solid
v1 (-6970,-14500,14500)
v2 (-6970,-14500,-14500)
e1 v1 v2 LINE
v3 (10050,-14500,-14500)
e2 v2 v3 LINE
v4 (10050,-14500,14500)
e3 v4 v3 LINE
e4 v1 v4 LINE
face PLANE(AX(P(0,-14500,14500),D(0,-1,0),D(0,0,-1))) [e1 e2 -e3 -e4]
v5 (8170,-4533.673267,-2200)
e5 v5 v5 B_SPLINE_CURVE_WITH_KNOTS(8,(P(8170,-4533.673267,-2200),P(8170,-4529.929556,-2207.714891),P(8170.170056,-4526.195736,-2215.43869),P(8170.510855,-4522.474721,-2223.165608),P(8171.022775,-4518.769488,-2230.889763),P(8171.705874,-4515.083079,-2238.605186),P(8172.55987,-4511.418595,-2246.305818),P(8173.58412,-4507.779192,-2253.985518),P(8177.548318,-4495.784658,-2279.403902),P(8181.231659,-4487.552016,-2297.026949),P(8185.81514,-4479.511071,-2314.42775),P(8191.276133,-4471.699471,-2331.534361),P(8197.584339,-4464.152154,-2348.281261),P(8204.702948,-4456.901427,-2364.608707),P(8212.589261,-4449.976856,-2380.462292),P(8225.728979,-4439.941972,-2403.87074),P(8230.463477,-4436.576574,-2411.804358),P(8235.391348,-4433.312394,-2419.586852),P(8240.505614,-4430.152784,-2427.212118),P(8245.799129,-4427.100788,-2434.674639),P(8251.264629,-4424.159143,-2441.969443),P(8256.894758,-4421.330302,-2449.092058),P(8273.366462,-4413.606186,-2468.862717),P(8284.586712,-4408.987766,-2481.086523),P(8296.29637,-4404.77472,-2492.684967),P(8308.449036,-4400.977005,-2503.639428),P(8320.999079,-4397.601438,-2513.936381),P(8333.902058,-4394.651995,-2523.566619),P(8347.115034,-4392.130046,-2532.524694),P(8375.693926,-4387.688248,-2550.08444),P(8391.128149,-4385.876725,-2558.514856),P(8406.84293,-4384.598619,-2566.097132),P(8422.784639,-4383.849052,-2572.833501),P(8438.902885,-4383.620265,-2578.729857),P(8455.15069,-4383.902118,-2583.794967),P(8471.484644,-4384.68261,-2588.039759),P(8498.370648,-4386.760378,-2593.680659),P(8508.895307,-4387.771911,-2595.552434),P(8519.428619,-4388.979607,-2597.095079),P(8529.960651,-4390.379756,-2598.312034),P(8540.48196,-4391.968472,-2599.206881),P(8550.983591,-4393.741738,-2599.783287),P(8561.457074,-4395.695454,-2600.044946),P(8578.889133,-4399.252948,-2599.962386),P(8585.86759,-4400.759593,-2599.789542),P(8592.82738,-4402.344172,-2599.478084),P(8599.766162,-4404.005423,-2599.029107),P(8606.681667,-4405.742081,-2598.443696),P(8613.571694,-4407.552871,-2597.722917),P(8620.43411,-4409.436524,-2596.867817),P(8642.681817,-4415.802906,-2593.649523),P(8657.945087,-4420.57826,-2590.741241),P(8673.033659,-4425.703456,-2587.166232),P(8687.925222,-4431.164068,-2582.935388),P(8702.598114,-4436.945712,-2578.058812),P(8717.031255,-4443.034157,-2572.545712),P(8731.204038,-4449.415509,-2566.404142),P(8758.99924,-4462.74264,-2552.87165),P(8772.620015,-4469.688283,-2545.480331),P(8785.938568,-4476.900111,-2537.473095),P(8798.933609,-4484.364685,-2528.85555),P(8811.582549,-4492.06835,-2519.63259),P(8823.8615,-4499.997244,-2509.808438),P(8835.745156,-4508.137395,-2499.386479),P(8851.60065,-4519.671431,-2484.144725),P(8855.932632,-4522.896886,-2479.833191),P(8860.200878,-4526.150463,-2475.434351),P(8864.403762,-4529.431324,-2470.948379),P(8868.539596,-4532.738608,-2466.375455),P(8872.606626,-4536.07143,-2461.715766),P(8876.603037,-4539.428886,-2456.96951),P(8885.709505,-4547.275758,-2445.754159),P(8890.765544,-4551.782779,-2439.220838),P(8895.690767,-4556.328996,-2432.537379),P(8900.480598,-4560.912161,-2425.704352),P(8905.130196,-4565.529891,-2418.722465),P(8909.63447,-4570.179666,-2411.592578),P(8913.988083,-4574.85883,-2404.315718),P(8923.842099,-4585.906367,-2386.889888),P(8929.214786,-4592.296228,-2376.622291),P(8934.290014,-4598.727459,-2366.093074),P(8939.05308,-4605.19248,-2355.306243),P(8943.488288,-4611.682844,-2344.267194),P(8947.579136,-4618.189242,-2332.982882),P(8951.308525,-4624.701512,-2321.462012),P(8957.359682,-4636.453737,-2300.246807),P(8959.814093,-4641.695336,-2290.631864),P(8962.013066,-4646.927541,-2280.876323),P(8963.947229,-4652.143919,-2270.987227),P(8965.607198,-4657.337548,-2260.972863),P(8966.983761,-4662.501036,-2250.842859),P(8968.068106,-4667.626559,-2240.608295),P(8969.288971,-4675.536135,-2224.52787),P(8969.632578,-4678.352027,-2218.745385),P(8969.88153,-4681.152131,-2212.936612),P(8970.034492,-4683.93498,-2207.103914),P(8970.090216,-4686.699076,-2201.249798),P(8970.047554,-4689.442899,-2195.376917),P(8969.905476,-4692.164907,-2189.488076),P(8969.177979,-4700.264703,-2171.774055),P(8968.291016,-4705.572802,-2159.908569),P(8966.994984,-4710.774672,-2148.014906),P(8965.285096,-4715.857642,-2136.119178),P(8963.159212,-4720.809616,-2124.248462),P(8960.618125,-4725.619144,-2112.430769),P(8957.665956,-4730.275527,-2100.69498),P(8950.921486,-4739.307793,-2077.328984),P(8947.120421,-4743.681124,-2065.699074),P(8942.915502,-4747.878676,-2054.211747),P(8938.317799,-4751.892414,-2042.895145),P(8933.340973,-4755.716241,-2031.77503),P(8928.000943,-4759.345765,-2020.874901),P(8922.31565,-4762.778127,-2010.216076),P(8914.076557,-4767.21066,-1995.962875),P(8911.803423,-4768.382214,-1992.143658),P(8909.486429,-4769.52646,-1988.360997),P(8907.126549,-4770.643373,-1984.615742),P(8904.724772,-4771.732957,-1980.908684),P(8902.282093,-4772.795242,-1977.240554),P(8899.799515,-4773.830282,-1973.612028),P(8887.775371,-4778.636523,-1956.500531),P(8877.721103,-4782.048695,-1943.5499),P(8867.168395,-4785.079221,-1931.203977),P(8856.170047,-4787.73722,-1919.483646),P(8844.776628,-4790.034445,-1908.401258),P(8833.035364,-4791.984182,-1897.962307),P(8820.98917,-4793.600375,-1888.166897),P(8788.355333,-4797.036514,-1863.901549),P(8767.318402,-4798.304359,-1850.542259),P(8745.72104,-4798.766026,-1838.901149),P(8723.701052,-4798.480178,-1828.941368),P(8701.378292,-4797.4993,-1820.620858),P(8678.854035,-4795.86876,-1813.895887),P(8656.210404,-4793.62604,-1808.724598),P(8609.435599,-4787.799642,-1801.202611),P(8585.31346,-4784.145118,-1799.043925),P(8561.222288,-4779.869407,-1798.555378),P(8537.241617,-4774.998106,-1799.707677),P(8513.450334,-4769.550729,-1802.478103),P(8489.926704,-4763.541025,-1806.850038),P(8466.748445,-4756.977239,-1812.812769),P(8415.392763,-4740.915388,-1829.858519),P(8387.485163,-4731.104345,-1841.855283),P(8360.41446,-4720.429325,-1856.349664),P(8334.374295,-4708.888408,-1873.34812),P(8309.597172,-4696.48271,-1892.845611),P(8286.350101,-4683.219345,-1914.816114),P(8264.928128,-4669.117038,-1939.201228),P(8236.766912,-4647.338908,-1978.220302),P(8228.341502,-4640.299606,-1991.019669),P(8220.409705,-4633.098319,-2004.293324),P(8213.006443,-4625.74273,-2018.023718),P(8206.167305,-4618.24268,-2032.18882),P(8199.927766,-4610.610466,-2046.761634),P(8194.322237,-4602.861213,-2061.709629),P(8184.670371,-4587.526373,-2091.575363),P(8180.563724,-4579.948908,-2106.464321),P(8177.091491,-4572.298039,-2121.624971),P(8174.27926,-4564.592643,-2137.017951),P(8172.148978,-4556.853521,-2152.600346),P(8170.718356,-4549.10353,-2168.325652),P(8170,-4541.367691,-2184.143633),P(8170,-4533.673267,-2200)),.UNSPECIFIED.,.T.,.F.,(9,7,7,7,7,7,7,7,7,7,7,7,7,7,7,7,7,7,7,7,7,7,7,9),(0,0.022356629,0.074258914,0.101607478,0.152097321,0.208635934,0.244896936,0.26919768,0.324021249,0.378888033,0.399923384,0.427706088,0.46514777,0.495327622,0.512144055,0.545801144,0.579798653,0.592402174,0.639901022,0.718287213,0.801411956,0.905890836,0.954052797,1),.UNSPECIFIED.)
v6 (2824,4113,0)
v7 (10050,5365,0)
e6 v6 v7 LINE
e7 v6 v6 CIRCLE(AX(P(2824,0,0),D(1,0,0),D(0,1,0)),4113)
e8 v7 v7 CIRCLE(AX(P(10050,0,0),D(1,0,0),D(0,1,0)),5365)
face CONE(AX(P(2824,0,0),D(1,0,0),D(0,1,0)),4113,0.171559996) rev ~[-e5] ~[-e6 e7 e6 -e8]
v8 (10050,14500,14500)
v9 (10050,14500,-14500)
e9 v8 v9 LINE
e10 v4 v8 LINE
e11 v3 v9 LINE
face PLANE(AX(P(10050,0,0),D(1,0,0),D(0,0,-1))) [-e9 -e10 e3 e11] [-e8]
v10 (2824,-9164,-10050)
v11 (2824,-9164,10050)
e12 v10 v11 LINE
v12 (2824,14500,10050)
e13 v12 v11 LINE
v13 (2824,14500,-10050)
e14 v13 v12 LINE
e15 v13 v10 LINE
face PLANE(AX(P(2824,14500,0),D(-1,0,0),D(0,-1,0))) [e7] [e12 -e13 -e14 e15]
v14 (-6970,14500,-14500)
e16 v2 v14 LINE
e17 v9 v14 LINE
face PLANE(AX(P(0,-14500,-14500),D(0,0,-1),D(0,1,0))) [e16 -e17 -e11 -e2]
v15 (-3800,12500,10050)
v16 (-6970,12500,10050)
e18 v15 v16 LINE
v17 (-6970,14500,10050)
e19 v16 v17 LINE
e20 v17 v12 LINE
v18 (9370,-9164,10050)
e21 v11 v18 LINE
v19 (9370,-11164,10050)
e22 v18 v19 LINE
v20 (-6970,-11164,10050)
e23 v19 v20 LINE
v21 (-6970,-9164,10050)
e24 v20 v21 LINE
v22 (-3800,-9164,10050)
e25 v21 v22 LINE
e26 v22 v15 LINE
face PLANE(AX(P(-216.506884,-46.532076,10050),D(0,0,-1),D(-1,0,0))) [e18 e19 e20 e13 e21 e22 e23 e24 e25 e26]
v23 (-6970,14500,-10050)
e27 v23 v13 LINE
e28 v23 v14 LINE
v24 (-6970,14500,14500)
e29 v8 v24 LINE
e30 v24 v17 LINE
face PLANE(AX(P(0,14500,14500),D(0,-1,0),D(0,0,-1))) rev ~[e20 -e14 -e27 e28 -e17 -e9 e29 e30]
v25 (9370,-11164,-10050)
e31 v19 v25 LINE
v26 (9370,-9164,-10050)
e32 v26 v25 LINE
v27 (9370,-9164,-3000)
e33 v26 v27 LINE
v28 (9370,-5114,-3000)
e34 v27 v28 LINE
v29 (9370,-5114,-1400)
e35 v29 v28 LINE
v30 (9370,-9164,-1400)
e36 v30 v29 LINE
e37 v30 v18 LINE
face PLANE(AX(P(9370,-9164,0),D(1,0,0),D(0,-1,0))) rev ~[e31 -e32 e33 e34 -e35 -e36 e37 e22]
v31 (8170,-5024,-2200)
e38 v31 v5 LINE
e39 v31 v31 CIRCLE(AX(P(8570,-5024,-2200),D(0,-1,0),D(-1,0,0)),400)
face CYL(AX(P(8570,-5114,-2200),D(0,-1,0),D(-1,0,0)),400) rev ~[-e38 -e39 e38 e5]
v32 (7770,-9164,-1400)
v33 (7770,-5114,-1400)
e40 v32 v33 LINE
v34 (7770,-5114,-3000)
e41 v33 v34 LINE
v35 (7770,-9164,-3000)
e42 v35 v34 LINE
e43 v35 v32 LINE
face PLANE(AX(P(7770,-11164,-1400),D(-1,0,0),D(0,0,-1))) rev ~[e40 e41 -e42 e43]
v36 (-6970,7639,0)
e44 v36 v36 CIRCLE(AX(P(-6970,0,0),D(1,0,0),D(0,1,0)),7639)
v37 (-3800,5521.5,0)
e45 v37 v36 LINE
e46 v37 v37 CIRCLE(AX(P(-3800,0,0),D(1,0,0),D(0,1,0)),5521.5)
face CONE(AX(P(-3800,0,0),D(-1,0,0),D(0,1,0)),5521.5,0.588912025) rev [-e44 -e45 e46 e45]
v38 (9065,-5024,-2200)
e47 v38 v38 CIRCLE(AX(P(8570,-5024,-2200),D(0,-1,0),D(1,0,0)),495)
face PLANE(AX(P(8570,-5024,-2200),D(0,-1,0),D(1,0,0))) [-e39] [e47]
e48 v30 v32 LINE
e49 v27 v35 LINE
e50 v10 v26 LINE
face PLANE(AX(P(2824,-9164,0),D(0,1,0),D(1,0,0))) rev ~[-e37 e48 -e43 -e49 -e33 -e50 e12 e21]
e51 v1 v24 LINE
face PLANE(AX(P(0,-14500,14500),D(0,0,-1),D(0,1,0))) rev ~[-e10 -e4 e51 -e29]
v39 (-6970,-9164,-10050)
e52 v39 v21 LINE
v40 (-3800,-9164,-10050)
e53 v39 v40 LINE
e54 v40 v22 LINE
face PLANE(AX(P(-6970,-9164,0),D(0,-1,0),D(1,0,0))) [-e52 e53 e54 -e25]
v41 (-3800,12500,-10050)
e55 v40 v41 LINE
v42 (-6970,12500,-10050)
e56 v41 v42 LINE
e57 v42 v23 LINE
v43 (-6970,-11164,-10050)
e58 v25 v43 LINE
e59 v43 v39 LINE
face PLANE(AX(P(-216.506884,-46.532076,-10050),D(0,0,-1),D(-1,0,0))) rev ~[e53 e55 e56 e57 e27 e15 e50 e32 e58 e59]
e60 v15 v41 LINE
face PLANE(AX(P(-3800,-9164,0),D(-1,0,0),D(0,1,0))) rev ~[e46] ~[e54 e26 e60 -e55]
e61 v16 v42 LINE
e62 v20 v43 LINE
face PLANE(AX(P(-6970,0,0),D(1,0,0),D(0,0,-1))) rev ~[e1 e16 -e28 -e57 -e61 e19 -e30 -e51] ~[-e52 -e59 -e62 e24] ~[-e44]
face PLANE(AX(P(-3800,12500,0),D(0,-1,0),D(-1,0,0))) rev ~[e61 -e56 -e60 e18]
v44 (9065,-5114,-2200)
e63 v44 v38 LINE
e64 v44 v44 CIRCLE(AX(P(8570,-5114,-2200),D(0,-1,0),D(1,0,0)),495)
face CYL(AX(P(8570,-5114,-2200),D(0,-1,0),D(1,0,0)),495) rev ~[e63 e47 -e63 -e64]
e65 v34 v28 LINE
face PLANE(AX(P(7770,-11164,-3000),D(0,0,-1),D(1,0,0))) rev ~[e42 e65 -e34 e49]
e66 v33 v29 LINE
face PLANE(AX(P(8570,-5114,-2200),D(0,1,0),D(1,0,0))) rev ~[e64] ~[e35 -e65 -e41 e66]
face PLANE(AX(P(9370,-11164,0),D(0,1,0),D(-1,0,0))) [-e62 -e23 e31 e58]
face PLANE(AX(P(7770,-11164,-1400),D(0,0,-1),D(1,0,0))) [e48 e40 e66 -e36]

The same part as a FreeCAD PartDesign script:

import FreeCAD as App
import Part
import Sketcher
from FreeCAD import Vector
Q = App.Units.Quantity


def add_polygon(sketch, points):
    """Adds a closed chain of lines whose ends are joined by coincident constraints."""
    first, n = sketch.GeometryCount, len(points)
    for a, b in zip(points, points[1:] + points[:1]):
        sketch.addGeometry(Part.LineSegment(App.Vector(*a, 0), App.Vector(*b, 0)), False)
    for i in range(n):
        sketch.addConstraint(Sketcher.Constraint("Coincident", first + i, 2, first + (i + 1) % n, 1))

doc = App.newDocument("Part")
params = doc.addObject("Spreadsheet::Sheet", "Params")
for row, (alias, value) in enumerate([
    ("sketch1_width", "29000 mm"),
    ("pad1_length", "10050 mm"),
    ("pad1_length2", "6970 mm"),
    ("sketch2_width", "7226 mm"),
    ("sketch2_width2", "3170 mm"),
    ("sketch2_height", "4113 mm"),
    ("sketch2_height2", "5365 mm"),
    ("sketch2_height3", "7639 mm"),
    ("groove_angle", "360 deg"),
    ("sketch3_width", "3170 mm"),
    ("sketch3_width2", "16340 mm"),
    ("sketch3_width3", "6546 mm"),
    ("sketch3_height", "21664 mm"),
    ("sketch3_height2", "2000 mm"),
    ("pocket1_length", "10050 mm"),
    ("pocket1_length2", "10050 mm"),
    ("sketch4_width", "1600 mm"),
    ("pocket2_length", "6050 mm"),
    ("sketch5_diameter", "800 mm"),
    ("sketch6_diameter", "990 mm"),
    ("pocket4_length", "90 mm"),
], start=1):
    params.set(f"A{row}", alias)
    params.set(f"B{row}", "=" + value)
    params.setAlias(f"B{row}", alias)

body = doc.addObject("PartDesign::Body", "Body")

# Sketch on YZ plane
sketch1 = body.newObject("Sketcher::SketchObject", "Sketch")
sketch1.AttachmentSupport = (doc.getObject("YZ_Plane"), [""])
sketch1.MapMode = "FlatFace"
add_polygon(sketch1, [(14500, 14500), (-14500, 14500), (-14500, -14500), (14500, -14500)])  # lines 0-3
sketch1.addConstraint([
    Sketcher.Constraint("Horizontal", 0),
    Sketcher.Constraint("Vertical", 1),
    Sketcher.Constraint("Horizontal", 2),
    Sketcher.Constraint("Vertical", 3),
    Sketcher.Constraint("Symmetric", 0, 2, 2, 2, -1, 1),
    Sketcher.Constraint("Equal", 2, 1),
    Sketcher.Constraint("DistanceX", 0, 2, 0, 1, Q("29000 mm")),
])
sketch1.setExpression("Constraints[10]", "Params.sketch1_width")
pad1 = body.newObject("PartDesign::Pad", "Pad")
pad1.Profile = sketch1
pad1.Type = "TwoLengths"
pad1.setExpression("Length", "Params.pad1_length")
pad1.setExpression("Length2", "Params.pad1_length2")

# Sketch on XY plane
sketch2 = body.newObject("Sketcher::SketchObject", "Sketch001")
sketch2.AttachmentSupport = (doc.getObject("XY_Plane"), [""])
sketch2.MapMode = "FlatFace"
add_polygon(sketch2, [(10050, 5365), (2824, 4113), (2824, 0), (10050, 0)])  # lines 0-3
add_polygon(sketch2, [(-3800, 5522), (-6970, 7639), (-6970, 0), (-3800, 0)])  # lines 4-7
sketch2.addConstraint([
    Sketcher.Constraint("Vertical", 1),
    Sketcher.Constraint("Horizontal", 2),
    Sketcher.Constraint("Vertical", 3),
    Sketcher.Constraint("Vertical", 5),
    Sketcher.Constraint("Horizontal", 6),
    Sketcher.Constraint("Vertical", 7),
    Sketcher.Constraint("PointOnObject", 1, 2, -1),
    Sketcher.Constraint("PointOnObject", 5, 2, -1),
    Sketcher.Constraint("DistanceX", 2, 1, 2, 2, Q("7226 mm")),
    Sketcher.Constraint("DistanceX", 6, 1, 6, 2, Q("3170 mm")),
    Sketcher.Constraint("DistanceY", 1, 2, 1, 1, Q("4113 mm")),
    Sketcher.Constraint("DistanceY", 3, 1, 3, 2, Q("5365 mm")),
    Sketcher.Constraint("DistanceY", 5, 2, 5, 1, Q("7639 mm")),
    Sketcher.Constraint("DistanceY", 7, 1, 7, 2, Q("5521.5 mm")),
    Sketcher.Constraint("DistanceX", -1, 1, 0, 2, Q("2824 mm")),
    Sketcher.Constraint("DistanceX", 4, 2, -1, 1, Q("6970 mm")),
])
sketch2.setExpression("Constraints[16]", "Params.sketch2_width")
sketch2.setExpression("Constraints[17]", "Params.sketch2_width2")
sketch2.setExpression("Constraints[18]", "Params.sketch2_height")
sketch2.setExpression("Constraints[19]", "Params.sketch2_height2")
sketch2.setExpression("Constraints[20]", "Params.sketch2_height3")
groove = body.newObject("PartDesign::Groove", "Groove")
groove.Profile = sketch2
groove.ReferenceAxis = (sketch2, ["H_Axis"])
groove.setExpression("Angle", "Params.groove_angle")

# Sketch on XY plane
sketch3 = body.newObject("Sketcher::SketchObject", "Sketch002")
sketch3.AttachmentSupport = (doc.getObject("XY_Plane"), [""])
sketch3.MapMode = "FlatFace"
add_polygon(sketch3, [(-3800, 12500), (-3800, -9164), (-6970, -9164), (-6970, -11164), (9370, -11164), (9370, -9164), (2824, -9164), (2824, 14500), (-6970, 14500), (-6970, 12500)])  # lines 0-9
sketch3.addConstraint([
    Sketcher.Constraint("Vertical", 0),
    Sketcher.Constraint("Horizontal", 1),
    Sketcher.Constraint("Vertical", 2),
    Sketcher.Constraint("Horizontal", 3),
    Sketcher.Constraint("Vertical", 4),
    Sketcher.Constraint("Horizontal", 5),
    Sketcher.Constraint("Vertical", 6),
    Sketcher.Constraint("Horizontal", 7),
    Sketcher.Constraint("Vertical", 8),
    Sketcher.Constraint("Horizontal", 9),
    Sketcher.Constraint("Horizontal", 1, 2, 4, 2),
    Sketcher.Constraint("Vertical", 2, 2, 7, 2),
    Sketcher.Constraint("Equal", 4, 8),
    Sketcher.Constraint("DistanceX", 1, 2, 1, 1, Q("3170 mm")),
    Sketcher.Constraint("DistanceX", 3, 1, 3, 2, Q("16340 mm")),
    Sketcher.Constraint("DistanceX", 5, 2, 5, 1, Q("6546 mm")),
    Sketcher.Constraint("DistanceY", 0, 2, 0, 1, Q("21664 mm")),
    Sketcher.Constraint("DistanceY", 2, 2, 2, 1, Q("2000 mm")),
    Sketcher.Constraint("DistanceX", 0, 2, -1, 1, Q("3800 mm")),
    Sketcher.Constraint("DistanceY", 0, 2, -1, 1, Q("9164 mm")),
])
sketch3.setExpression("Constraints[23]", "Params.sketch3_width")
sketch3.setExpression("Constraints[24]", "Params.sketch3_width2")
sketch3.setExpression("Constraints[25]", "Params.sketch3_width3")
sketch3.setExpression("Constraints[26]", "Params.sketch3_height")
sketch3.setExpression("Constraints[27]", "Params.sketch3_height2")
pocket1 = body.newObject("PartDesign::Pocket", "Pocket")
pocket1.Profile = sketch3
pocket1.Type = "TwoLengths"
pocket1.setExpression("Length", "Params.pocket1_length")
pocket1.setExpression("Length2", "Params.pocket1_length2")
pocket1.Reversed = True

# Sketch on XZ plane
sketch4 = body.newObject("Sketcher::SketchObject", "Sketch003")
sketch4.AttachmentSupport = (doc.getObject("XZ_Plane"), [""])
sketch4.MapMode = "FlatFace"
sketch4.AttachmentOffset = App.Placement(Vector(0, 0, 11164), App.Rotation())
add_polygon(sketch4, [(7770, -3000), (7770, -1400), (9370, -1400), (9370, -3000)])  # lines 0-3
sketch4.addConstraint([
    Sketcher.Constraint("Vertical", 0),
    Sketcher.Constraint("Horizontal", 1),
    Sketcher.Constraint("Vertical", 2),
    Sketcher.Constraint("Horizontal", 3),
    Sketcher.Constraint("Equal", 3, 0),
    Sketcher.Constraint("DistanceX", 1, 1, 1, 2, Q("1600 mm")),
    Sketcher.Constraint("DistanceX", -1, 1, 0, 2, Q("7770 mm")),
    Sketcher.Constraint("DistanceY", 0, 2, -1, 1, Q("1400 mm")),
])
sketch4.setExpression("Constraints[9]", "Params.sketch4_width")
pocket2 = body.newObject("PartDesign::Pocket", "Pocket001")
pocket2.Profile = sketch4
pocket2.setExpression("Length", "Params.pocket2_length")

# Sketch on XZ plane
sketch5 = body.newObject("Sketcher::SketchObject", "Sketch004")
sketch5.AttachmentSupport = (doc.getObject("XZ_Plane"), [""])
sketch5.MapMode = "FlatFace"
sketch5.AttachmentOffset = App.Placement(Vector(0, 0, 5114), App.Rotation())
sketch5.addGeometry(Part.Circle(Vector(8570, -2200, 0), Vector(0, 0, 1), 400), False)
sketch5.addConstraint([
    Sketcher.Constraint("Diameter", 0, Q("800 mm")),
    Sketcher.Constraint("DistanceX", -1, 1, 0, 3, Q("8570 mm")),
    Sketcher.Constraint("DistanceY", 0, 3, -1, 1, Q("2200 mm")),
])
sketch5.setExpression("Constraints[0]", "Params.sketch5_diameter")
pocket3 = body.newObject("PartDesign::Pocket", "Pocket002")
pocket3.Profile = sketch5
pocket3.Type = "UpToFirst"

# Sketch on XZ plane
sketch6 = body.newObject("Sketcher::SketchObject", "Sketch005")
sketch6.AttachmentSupport = (doc.getObject("XZ_Plane"), [""])
sketch6.MapMode = "FlatFace"
sketch6.AttachmentOffset = App.Placement(Vector(0, 0, 5114), App.Rotation())
sketch6.addGeometry(Part.Circle(Vector(8570, -2200, 0), Vector(0, 0, 1), 495), False)
sketch6.addConstraint([
    Sketcher.Constraint("Diameter", 0, Q("990 mm")),
    Sketcher.Constraint("DistanceX", -1, 1, 0, 3, Q("8570 mm")),
    Sketcher.Constraint("DistanceY", 0, 3, -1, 1, Q("2200 mm")),
])
sketch6.setExpression("Constraints[0]", "Params.sketch6_diameter")
pocket4 = body.newObject("PartDesign::Pocket", "Pocket003")
pocket4.Profile = sketch6
pocket4.setExpression("Length", "Params.pocket4_length")

doc.recompute()
